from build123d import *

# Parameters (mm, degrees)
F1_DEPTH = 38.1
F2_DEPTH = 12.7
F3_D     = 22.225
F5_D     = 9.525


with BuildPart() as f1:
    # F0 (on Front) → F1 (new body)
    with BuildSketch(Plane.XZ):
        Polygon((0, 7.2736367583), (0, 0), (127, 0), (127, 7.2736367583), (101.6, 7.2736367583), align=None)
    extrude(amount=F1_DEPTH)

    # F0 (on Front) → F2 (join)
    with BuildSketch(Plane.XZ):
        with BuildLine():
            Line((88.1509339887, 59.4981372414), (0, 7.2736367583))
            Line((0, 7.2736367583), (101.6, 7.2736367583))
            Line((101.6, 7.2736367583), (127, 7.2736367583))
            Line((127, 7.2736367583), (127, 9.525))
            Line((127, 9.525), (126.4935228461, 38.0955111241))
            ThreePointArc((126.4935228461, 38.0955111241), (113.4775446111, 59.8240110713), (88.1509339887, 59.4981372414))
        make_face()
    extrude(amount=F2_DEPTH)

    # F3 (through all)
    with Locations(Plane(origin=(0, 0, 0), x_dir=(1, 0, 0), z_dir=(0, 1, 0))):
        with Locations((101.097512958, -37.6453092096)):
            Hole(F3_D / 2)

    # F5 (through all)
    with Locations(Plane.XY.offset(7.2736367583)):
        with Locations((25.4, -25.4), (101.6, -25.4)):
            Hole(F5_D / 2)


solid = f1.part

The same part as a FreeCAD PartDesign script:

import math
import FreeCAD as App
import Part
import Sketcher
Q = App.Units.Quantity

doc = App.newDocument("Part")
body = doc.addObject("PartDesign::Body", "Body")

sketch1 = doc.addObject("Sketcher::SketchObject", "Sketch")
body.addObject(sketch1)
sketch1.AttachmentSupport = (doc.XZ_Plane, [""])
sketch1.MapMode = "FlatFace"
sketch1.addGeometry(Part.LineSegment(App.Vector(0, 7, 0), App.Vector(0, 0, 0)), False)
sketch1.addGeometry(Part.LineSegment(App.Vector(0, 0, 0), App.Vector(127, 0, 0)), False)
sketch1.addGeometry(Part.LineSegment(App.Vector(127, 0, 0), App.Vector(127, 7, 0)), False)
sketch1.addGeometry(Part.LineSegment(App.Vector(127, 7, 0), App.Vector(0, 7, 0)), False)
sketch1.addConstraint(Sketcher.Constraint("Coincident", 0, 2, 1, 1))
sketch1.addConstraint(Sketcher.Constraint("Coincident", 1, 2, 2, 1))
sketch1.addConstraint(Sketcher.Constraint("Coincident", 2, 2, 3, 1))
sketch1.addConstraint(Sketcher.Constraint("Coincident", 3, 2, 0, 1))
sketch1.addConstraint(Sketcher.Constraint("Vertical", 0))
sketch1.addConstraint(Sketcher.Constraint("Horizontal", 1))
sketch1.addConstraint(Sketcher.Constraint("Vertical", 2))
sketch1.addConstraint(Sketcher.Constraint("Horizontal", 3))
sketch1.addConstraint(Sketcher.Constraint("Coincident", 0, 2, -1, 1))
sketch1.addConstraint(Sketcher.Constraint("DistanceX", 1, 1, 1, 2, Q("5 in")))
sketch1.addConstraint(Sketcher.Constraint("DistanceY", 0, 2, 0, 1, 7.273637))
pad1 = doc.addObject("PartDesign::Pad", "Pad")
body.addObject(pad1)
pad1.Profile = sketch1
pad1.Length = Q("1.5 in")

sketch2 = doc.addObject("Sketcher::SketchObject", "Sketch001")
body.addObject(sketch2)
sketch2.AttachmentSupport = (doc.XZ_Plane, [""])
sketch2.MapMode = "FlatFace"
sketch2.addGeometry(Part.LineSegment(App.Vector(88.2, 59.5, 0), App.Vector(0, 7.3, 0)), False)
sketch2.addGeometry(Part.LineSegment(App.Vector(0, 7.3, 0), App.Vector(127, 7.3, 0)), False)
sketch2.addGeometry(Part.LineSegment(App.Vector(127, 7.3, 0), App.Vector(127, 9.5, 0)), False)
sketch2.addGeometry(Part.LineSegment(App.Vector(127, 9.5, 0), App.Vector(126.5, 38.1, 0)), False)
sketch2.addGeometry(Part.ArcOfCircle(Part.Circle(App.Vector(101.1, 37.6, 0), App.Vector(0, 0, 1), 25.4), math.radians(1), math.radians(121)), False)
sketch2.addConstraint(Sketcher.Constraint("Coincident", 0, 2, 1, 1))
sketch2.addConstraint(Sketcher.Constraint("Coincident", 1, 2, 2, 1))
sketch2.addConstraint(Sketcher.Constraint("Coincident", 2, 2, 3, 1))
sketch2.addConstraint(Sketcher.Constraint("Tangent", 3, 2, 4, 1))
sketch2.addConstraint(Sketcher.Constraint("Tangent", 4, 2, 0, 1))
sketch2.addConstraint(Sketcher.Constraint("Horizontal", 1))
sketch2.addConstraint(Sketcher.Constraint("Vertical", 2))
sketch2.addConstraint(Sketcher.Constraint("PointOnObject", 0, 2, -2))
sketch2.addConstraint(Sketcher.Constraint("Radius", 4, Q("1 in")))
sketch2.addConstraint(Sketcher.Constraint("DistanceX", 1, 1, 1, 2, Q("5 in")))
sketch2.addConstraint(Sketcher.Constraint("Distance", 3, Q("1.125 in")))
sketch2.addConstraint(Sketcher.Constraint("DistanceY", -1, 1, 2, 2, Q("0.375 in")))
sketch2.addConstraint(Sketcher.Constraint("DistanceY", 4, 3, 3, 2, 0.450202))
sketch2.addConstraint(Sketcher.Constraint("DistanceY", 1, 2, 4, 2, 52.2245))
pad2 = doc.addObject("PartDesign::Pad", "Pad001")
body.addObject(pad2)
pad2.Profile = sketch2
pad2.Length = Q("0.5 in")

sketch3 = doc.addObject("Sketcher::SketchObject", "Sketch002")
body.addObject(sketch3)
sketch3.AttachmentSupport = (doc.XZ_Plane, [""])
sketch3.MapMode = "FlatFace"
sketch3.addGeometry(Part.Circle(App.Vector(101, 38, 0), App.Vector(0, 0, 1), 11), False)
sketch3.addConstraint(Sketcher.Constraint("Diameter", 0, Q("0.875 in")))
sketch3.addConstraint(Sketcher.Constraint("DistanceY", -1, 1, 0, 3, 37.645309))
sketch3.addConstraint(Sketcher.Constraint("DistanceX", -1, 1, 0, 3, 101.097513))
doc.recompute()
hole = doc.addObject("PartDesign::Hole", "Hole")
body.addObject(hole)
hole.Profile = sketch3
hole.ThreadType = "None"
hole.Diameter = Q("0.875 in")
hole.DepthType = "ThroughAll"
hole.Reversed = True

sketch4 = doc.addObject("Sketcher::SketchObject", "Sketch003")
body.addObject(sketch4)
sketch4.AttachmentSupport = (doc.XY_Plane, [""])
sketch4.MapMode = "FlatFace"
sketch4.AttachmentOffset = App.Placement(App.Vector(0, 0, 7.273637), App.Rotation())
sketch4.addGeometry(Part.Circle(App.Vector(25.4, -25.4, 0), App.Vector(0, 0, 1), 4.8), False)
sketch4.addGeometry(Part.Circle(App.Vector(101.6, -25.4, 0), App.Vector(0, 0, 1), 4.8), False)
sketch4.addConstraint(Sketcher.Constraint("Equal", 0, 1))
sketch4.addConstraint(Sketcher.Constraint("Horizontal", 0, 3, 1, 3))
sketch4.addConstraint(Sketcher.Constraint("Diameter", 0, Q("0.375 in")))
sketch4.addConstraint(Sketcher.Constraint("DistanceX", -1, 1, 0, 3, Q("1 in")))
sketch4.addConstraint(Sketcher.Constraint("DistanceY", 0, 3, -1, 1, Q("1 in")))
sketch4.addConstraint(Sketcher.Constraint("DistanceX", -1, 1, 1, 3, Q("4 in")))
doc.recompute()
hole2 = doc.addObject("PartDesign::Hole", "Hole001")
body.addObject(hole2)
hole2.Profile = sketch4
hole2.ThreadType = "None"
hole2.Diameter = Q("0.375 in")
hole2.DepthType = "ThroughAll"

doc.recompute()
